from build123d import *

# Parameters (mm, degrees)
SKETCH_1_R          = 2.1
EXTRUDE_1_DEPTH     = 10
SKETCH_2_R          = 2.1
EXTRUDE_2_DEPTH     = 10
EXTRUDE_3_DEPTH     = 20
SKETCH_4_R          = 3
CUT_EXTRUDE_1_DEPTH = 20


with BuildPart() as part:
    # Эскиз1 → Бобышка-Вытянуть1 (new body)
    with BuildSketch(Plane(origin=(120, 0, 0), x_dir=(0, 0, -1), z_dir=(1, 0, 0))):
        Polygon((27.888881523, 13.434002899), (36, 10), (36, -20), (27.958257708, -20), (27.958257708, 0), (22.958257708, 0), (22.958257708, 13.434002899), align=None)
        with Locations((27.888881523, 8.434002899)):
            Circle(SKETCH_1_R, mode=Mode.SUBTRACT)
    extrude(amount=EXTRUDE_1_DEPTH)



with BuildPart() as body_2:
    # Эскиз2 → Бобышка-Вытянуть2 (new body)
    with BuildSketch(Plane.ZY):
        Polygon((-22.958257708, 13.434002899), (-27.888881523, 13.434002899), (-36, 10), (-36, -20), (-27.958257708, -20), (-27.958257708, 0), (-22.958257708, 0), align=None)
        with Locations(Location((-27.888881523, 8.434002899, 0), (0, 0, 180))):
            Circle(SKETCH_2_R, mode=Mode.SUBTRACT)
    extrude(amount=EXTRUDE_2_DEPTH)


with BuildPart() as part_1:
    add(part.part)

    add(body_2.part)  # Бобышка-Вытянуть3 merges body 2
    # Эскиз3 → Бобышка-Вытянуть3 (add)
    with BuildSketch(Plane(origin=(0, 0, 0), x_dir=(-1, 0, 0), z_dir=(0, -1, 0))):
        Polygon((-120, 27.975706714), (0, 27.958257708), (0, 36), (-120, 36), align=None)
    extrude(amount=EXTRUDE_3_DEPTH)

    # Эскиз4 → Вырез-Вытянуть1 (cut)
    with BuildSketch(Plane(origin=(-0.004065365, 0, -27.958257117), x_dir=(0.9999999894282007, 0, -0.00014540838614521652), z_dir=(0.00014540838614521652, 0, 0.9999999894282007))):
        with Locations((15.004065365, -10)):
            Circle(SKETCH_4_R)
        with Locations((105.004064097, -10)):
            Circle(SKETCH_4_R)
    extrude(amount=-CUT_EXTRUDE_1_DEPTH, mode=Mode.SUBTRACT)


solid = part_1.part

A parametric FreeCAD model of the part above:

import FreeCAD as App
import Part
import Sketcher
from FreeCAD import Vector

doc = App.newDocument("Part")
body = doc.addObject("PartDesign::Body", "Body")

sketch1 = body.newObject("Sketcher::SketchObject", "Sketch")
sketch1.AttachmentSupport = (doc.getObject("YZ_Plane"), [""])
sketch1.MapMode = "FlatFace"
sketch1.AttachmentOffset = App.Placement(Vector(0, 0, 120), App.Rotation())
sketch1.addGeometry([
    Part.LineSegment(Vector(10, -36, 0), Vector(13.434003, -27.888882, 0)),
    Part.LineSegment(Vector(13.434003, -27.888882, 0), Vector(13.434003, -22.958258, 0)),
    Part.LineSegment(Vector(13.434003, -22.958258, 0), Vector(0, -22.958258, 0)),
    Part.LineSegment(Vector(0, -22.958258, 0), Vector(0, -27.958258, 0)),
    Part.LineSegment(Vector(0, -27.958258, 0), Vector(-20, -27.958258, 0)),
    Part.LineSegment(Vector(-20, -27.958258, 0), Vector(-20, -36, 0)),
    Part.LineSegment(Vector(-20, -36, 0), Vector(10, -36, 0)),
    Part.Circle(Vector(8.434003, -27.888882, 0), Vector(0, 0, 1), 2.1),
], False)
sketch1.addConstraint([
    Sketcher.Constraint("Coincident", 0, 2, 1, 1),
    Sketcher.Constraint("Coincident", 1, 2, 2, 1),
    Sketcher.Constraint("Coincident", 2, 2, 3, 1),
    Sketcher.Constraint("Coincident", 3, 2, 4, 1),
    Sketcher.Constraint("Coincident", 4, 2, 5, 1),
    Sketcher.Constraint("Coincident", 5, 2, 6, 1),
    Sketcher.Constraint("Coincident", 6, 2, 0, 1),
    Sketcher.Constraint("Vertical", 1),
    Sketcher.Constraint("Horizontal", 2),
    Sketcher.Constraint("Vertical", 3),
    Sketcher.Constraint("Horizontal", 4),
    Sketcher.Constraint("Vertical", 5),
    Sketcher.Constraint("Horizontal", 6),
    Sketcher.Constraint("PointOnObject", 2, 2, -2),
    Sketcher.Constraint("Horizontal", 7, 3, 0, 2),
    Sketcher.Constraint("Diameter", 7, 4.2),
    Sketcher.Constraint("DistanceX", 4, 2, 4, 1, 20.0),
    Sketcher.Constraint("DistanceX", 6, 1, 6, 2, 30.0),
    Sketcher.Constraint("DistanceY", 3, 2, 3, 1, 5.0),
    Sketcher.Constraint("DistanceY", 5, 2, -1, 1, 36.0),
    Sketcher.Constraint("DistanceX", 7, 3, 0, 2, 5.0),
    Sketcher.Constraint("Distance", 0, 8.8081),
    Sketcher.Constraint("DistanceX", 2, 2, 2, 1, 13.434003),
    Sketcher.Constraint("DistanceY", 1, 1, 1, 2, 4.930624),
])
pad1 = body.newObject("PartDesign::Pad", "Pad")
pad1.Profile = sketch1
pad1.Length = 10
body2 = doc.addObject("PartDesign::Body", "Body001")

sketch2 = body2.newObject("Sketcher::SketchObject", "Sketch001")
sketch2.AttachmentSupport = (doc.getObject("YZ_Plane001"), [""])
sketch2.MapMode = "FlatFace"
sketch2.addGeometry([
    Part.LineSegment(Vector(13.434003, -22.958258, 0), Vector(13.434003, -27.888882, 0)),
    Part.LineSegment(Vector(13.434003, -27.888882, 0), Vector(10, -36, 0)),
    Part.LineSegment(Vector(10, -36, 0), Vector(-20, -36, 0)),
    Part.LineSegment(Vector(-20, -36, 0), Vector(-20, -27.958258, 0)),
    Part.LineSegment(Vector(-20, -27.958258, 0), Vector(0, -27.958258, 0)),
    Part.LineSegment(Vector(0, -27.958258, 0), Vector(0, -22.958258, 0)),
    Part.LineSegment(Vector(0, -22.958258, 0), Vector(13.434003, -22.958258, 0)),
    Part.Circle(Vector(8.434003, -27.888882, 0), Vector(0, 0, 1), 2.1),
], False)
sketch2.addConstraint([
    Sketcher.Constraint("Coincident", 0, 2, 1, 1),
    Sketcher.Constraint("Coincident", 1, 2, 2, 1),
    Sketcher.Constraint("Coincident", 2, 2, 3, 1),
    Sketcher.Constraint("Coincident", 3, 2, 4, 1),
    Sketcher.Constraint("Coincident", 4, 2, 5, 1),
    Sketcher.Constraint("Coincident", 5, 2, 6, 1),
    Sketcher.Constraint("Coincident", 6, 2, 0, 1),
    Sketcher.Constraint("Vertical", 0),
    Sketcher.Constraint("Horizontal", 2),
    Sketcher.Constraint("Vertical", 3),
    Sketcher.Constraint("Horizontal", 4),
    Sketcher.Constraint("Vertical", 5),
    Sketcher.Constraint("Horizontal", 6),
    Sketcher.Constraint("PointOnObject", 4, 2, -2),
    Sketcher.Constraint("Horizontal", 7, 3, 0, 2),
    Sketcher.Constraint("Diameter", 7, 4.2),
    Sketcher.Constraint("DistanceX", 2, 2, 2, 1, 30.0),
    Sketcher.Constraint("DistanceX", 4, 1, 4, 2, 20.0),
    Sketcher.Constraint("DistanceY", 5, 1, 5, 2, 5.0),
    Sketcher.Constraint("DistanceY", 1, 2, -1, 1, 36.0),
    Sketcher.Constraint("DistanceX", 7, 3, 0, 2, 5.0),
    Sketcher.Constraint("Distance", 1, 8.8081),
    Sketcher.Constraint("DistanceX", 6, 1, 6, 2, 13.434003),
    Sketcher.Constraint("DistanceY", 0, 2, 0, 1, 4.930624),
])
pad2 = body2.newObject("PartDesign::Pad", "Pad001")
pad2.Profile = sketch2
pad2.Length = 10
pad2.Reversed = True
body.AllowCompound = True
doc.recompute()

boolean = body.newObject("PartDesign::Boolean", "Boolean")
boolean.Type = "Fuse"
boolean.addObjects([body2])

sketch3 = body.newObject("Sketcher::SketchObject", "Sketch002")
sketch3.AttachmentSupport = (doc.getObject("XZ_Plane"), [""])
sketch3.MapMode = "FlatFace"
sketch3.addGeometry([
    Part.LineSegment(Vector(120, -27.975707, 0), Vector(0, -27.958258, 0)),
    Part.LineSegment(Vector(0, -27.958258, 0), Vector(0, -36, 0)),
    Part.LineSegment(Vector(0, -36, 0), Vector(120, -36, 0)),
    Part.LineSegment(Vector(120, -36, 0), Vector(120, -27.975707, 0)),
], False)
sketch3.addConstraint([
    Sketcher.Constraint("Coincident", 0, 2, 1, 1),
    Sketcher.Constraint("Coincident", 1, 2, 2, 1),
    Sketcher.Constraint("Coincident", 2, 2, 3, 1),
    Sketcher.Constraint("Coincident", 3, 2, 0, 1),
    Sketcher.Constraint("Vertical", 1),
    Sketcher.Constraint("Horizontal", 2),
    Sketcher.Constraint("Vertical", 3),
    Sketcher.Constraint("PointOnObject", 0, 2, -2),
    Sketcher.Constraint("DistanceX", 2, 1, 2, 2, 120.0),
    Sketcher.Constraint("DistanceY", 1, 2, -1, 1, 36.0),
    Sketcher.Constraint("DistanceY", 1, 2, 1, 1, 8.041742),
    Sketcher.Constraint("DistanceY", 3, 1, 3, 2, 8.024293),
])
pad3 = body.newObject("PartDesign::Pad", "Pad002")
pad3.Profile = sketch3
pad3.Length = 20

sketch4 = body.newObject("Sketcher::SketchObject", "Sketch003")
sketch4.Placement = App.Placement(Vector(-0.004065, 0, -27.958257), App.Rotation(Vector(0.999999989, 0, -0.000145408), Vector(0, 0.999999999, 0), Vector(0.000145408, 0, 0.999999989), "ZXY"))
sketch4.addGeometry([
    Part.Circle(Vector(15.004065, -10, 0), Vector(0, 0, 1), 3),
    Part.Circle(Vector(105.004064, -10, 0), Vector(0, 0, 1), 3),
], False)
sketch4.addConstraint([
    Sketcher.Constraint("Equal", 0, 1),
    Sketcher.Constraint("Horizontal", 0, 3, 1, 3),
    Sketcher.Constraint("Diameter", 0, 6.0),
    Sketcher.Constraint("DistanceY", 0, 3, -1, 1, 10.0),
    Sketcher.Constraint("DistanceX", 0, 3, 1, 3, 89.999999),
    Sketcher.Constraint("DistanceX", -1, 1, 0, 3, 15.004065),
])
pocket1 = body.newObject("PartDesign::Pocket", "Pocket")
pocket1.Profile = sketch4
pocket1.Length = 20

doc.recompute()
